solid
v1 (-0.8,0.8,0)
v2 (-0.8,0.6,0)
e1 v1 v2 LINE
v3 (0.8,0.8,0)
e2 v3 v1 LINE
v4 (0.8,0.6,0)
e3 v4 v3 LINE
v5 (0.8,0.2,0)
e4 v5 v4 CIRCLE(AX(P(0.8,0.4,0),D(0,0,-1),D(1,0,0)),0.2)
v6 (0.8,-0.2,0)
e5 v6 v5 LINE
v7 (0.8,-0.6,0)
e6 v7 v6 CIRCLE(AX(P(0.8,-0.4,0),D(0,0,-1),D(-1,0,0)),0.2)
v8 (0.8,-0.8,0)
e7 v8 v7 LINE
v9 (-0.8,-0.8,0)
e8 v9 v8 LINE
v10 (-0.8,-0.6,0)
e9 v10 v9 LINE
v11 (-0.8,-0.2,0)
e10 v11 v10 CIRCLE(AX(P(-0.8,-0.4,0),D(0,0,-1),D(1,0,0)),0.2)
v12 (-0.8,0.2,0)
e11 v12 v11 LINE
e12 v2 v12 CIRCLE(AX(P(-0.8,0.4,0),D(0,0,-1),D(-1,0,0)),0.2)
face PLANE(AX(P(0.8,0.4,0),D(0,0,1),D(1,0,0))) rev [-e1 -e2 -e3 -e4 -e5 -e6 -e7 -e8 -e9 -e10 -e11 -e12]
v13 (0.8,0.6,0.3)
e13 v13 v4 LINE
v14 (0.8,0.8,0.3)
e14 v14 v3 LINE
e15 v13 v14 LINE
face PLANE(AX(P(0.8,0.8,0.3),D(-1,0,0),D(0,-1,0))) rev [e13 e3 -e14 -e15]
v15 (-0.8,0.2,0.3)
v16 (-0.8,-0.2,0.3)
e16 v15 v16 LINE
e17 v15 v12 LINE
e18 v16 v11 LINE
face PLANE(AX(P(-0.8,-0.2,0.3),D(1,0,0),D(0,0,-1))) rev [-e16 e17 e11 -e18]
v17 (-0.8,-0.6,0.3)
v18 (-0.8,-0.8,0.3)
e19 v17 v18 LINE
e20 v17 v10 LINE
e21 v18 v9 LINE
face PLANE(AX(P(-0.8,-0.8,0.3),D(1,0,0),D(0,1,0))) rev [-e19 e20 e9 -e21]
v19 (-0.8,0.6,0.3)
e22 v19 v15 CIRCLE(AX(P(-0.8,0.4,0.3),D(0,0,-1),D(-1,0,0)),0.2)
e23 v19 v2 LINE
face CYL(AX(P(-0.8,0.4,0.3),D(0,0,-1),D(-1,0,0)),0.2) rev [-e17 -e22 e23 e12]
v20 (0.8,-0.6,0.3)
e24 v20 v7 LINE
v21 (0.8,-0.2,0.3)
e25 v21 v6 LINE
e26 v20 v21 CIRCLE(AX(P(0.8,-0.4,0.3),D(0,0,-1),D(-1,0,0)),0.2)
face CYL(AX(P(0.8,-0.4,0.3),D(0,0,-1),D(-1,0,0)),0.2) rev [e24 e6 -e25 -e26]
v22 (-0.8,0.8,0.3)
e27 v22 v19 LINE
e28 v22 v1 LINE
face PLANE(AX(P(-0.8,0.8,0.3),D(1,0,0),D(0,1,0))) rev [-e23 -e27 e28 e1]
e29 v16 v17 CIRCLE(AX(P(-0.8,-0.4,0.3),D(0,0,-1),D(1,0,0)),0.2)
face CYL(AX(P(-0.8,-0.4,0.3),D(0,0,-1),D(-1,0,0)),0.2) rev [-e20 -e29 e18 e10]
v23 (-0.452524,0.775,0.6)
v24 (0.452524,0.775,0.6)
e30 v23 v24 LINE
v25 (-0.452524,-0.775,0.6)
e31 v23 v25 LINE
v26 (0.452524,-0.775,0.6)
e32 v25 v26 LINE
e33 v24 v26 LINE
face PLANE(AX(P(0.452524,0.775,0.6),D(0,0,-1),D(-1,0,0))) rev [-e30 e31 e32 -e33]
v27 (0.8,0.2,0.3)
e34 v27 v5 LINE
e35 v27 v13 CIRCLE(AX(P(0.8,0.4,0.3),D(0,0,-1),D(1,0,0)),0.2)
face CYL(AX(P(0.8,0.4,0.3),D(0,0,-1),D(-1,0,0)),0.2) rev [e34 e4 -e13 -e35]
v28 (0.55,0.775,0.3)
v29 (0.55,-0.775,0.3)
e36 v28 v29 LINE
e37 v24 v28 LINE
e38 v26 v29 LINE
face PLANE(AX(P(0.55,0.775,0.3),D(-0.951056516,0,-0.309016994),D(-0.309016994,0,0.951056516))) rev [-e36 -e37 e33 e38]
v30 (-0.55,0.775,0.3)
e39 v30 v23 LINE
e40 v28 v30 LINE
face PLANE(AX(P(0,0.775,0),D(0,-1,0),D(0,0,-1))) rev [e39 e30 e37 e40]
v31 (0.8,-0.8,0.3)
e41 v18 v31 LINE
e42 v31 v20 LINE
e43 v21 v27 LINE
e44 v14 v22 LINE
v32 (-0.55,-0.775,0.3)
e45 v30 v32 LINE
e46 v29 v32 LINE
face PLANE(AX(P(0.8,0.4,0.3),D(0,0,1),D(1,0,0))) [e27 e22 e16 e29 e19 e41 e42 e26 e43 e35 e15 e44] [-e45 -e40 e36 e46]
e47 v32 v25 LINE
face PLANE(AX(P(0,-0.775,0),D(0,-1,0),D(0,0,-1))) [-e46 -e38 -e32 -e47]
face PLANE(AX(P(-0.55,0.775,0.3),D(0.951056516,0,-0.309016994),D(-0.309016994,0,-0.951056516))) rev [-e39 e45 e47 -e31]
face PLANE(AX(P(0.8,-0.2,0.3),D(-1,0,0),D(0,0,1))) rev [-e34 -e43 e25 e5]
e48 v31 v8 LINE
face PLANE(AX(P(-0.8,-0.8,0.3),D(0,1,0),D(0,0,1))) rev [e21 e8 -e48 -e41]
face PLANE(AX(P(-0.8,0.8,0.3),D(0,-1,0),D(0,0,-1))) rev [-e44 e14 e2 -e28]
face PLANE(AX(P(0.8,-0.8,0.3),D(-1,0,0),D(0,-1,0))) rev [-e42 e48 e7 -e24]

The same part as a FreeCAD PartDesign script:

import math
import FreeCAD as App
import Part
import Sketcher
from FreeCAD import Vector
Q = App.Units.Quantity


def add_polygon(sketch, points):
    """Adds a closed chain of lines whose ends are joined by coincident constraints."""
    first, n = sketch.GeometryCount, len(points)
    for a, b in zip(points, points[1:] + points[:1]):
        sketch.addGeometry(Part.LineSegment(App.Vector(*a, 0), App.Vector(*b, 0)), False)
    for i in range(n):
        sketch.addConstraint(Sketcher.Constraint("Coincident", first + i, 2, first + (i + 1) % n, 1))

doc = App.newDocument("Part")
params = doc.addObject("Spreadsheet::Sheet", "Params")
for row, (alias, value) in enumerate([
    ("sketch1_radius", "0.2 mm"),
    ("sketch1_width", "1.6 mm"),
    ("sketch1_height", "0.2 mm"),
    ("sketch1_height2", "0.4 mm"),
    ("pad1_length", "0.3 mm"),
    ("sketch2_width", "1.1 mm"),
    ("pad2_length", "1.55 mm"),
], start=1):
    params.set(f"A{row}", alias)
    params.set(f"B{row}", "=" + value)
    params.setAlias(f"B{row}", alias)

body = doc.addObject("PartDesign::Body", "Body")

# Sketch on XY plane
sketch1 = body.newObject("Sketcher::SketchObject", "Sketch")
sketch1.AttachmentSupport = (doc.getObject("XY_Plane"), [""])
sketch1.MapMode = "FlatFace"
sketch1.addGeometry([
    Part.LineSegment(Vector(0.8, 0.8, 0), Vector(-0.8, 0.8, 0)),  # 0
    Part.LineSegment(Vector(-0.8, 0.8, 0), Vector(-0.8, 0.6, 0)),  # 1
    Part.ArcOfCircle(Part.Circle(Vector(-0.8, 0.4, 0), Vector(0, 0, 1), 0.2), math.radians(-90), math.radians(90)),  # 2
    Part.LineSegment(Vector(-0.8, 0.2, 0), Vector(-0.8, -0.2, 0)),  # 3
    Part.ArcOfCircle(Part.Circle(Vector(-0.8, -0.4, 0), Vector(0, 0, 1), 0.2), math.radians(-90), math.radians(90)),  # 4
    Part.LineSegment(Vector(-0.8, -0.6, 0), Vector(-0.8, -0.8, 0)),  # 5
    Part.LineSegment(Vector(-0.8, -0.8, 0), Vector(0.8, -0.8, 0)),  # 6
    Part.LineSegment(Vector(0.8, -0.8, 0), Vector(0.8, -0.6, 0)),  # 7
    Part.ArcOfCircle(Part.Circle(Vector(0.8, -0.4, 0), Vector(0, 0, 1), 0.2), math.radians(90), math.radians(270)),  # 8
    Part.LineSegment(Vector(0.8, -0.2, 0), Vector(0.8, 0.2, 0)),  # 9
    Part.ArcOfCircle(Part.Circle(Vector(0.8, 0.4, 0), Vector(0, 0, 1), 0.2), math.radians(90), math.radians(270)),  # 10
    Part.LineSegment(Vector(0.8, 0.6, 0), Vector(0.8, 0.8, 0)),  # 11
], False)
sketch1.addConstraint([
    Sketcher.Constraint("Coincident", 0, 2, 1, 1),
    Sketcher.Constraint("Coincident", 1, 2, 2, 2),
    Sketcher.Constraint("Coincident", 2, 1, 3, 1),
    Sketcher.Constraint("Coincident", 3, 2, 4, 2),
    Sketcher.Constraint("Coincident", 4, 1, 5, 1),
    Sketcher.Constraint("Coincident", 5, 2, 6, 1),
    Sketcher.Constraint("Coincident", 6, 2, 7, 1),
    Sketcher.Constraint("Coincident", 7, 2, 8, 2),
    Sketcher.Constraint("Coincident", 8, 1, 9, 1),
    Sketcher.Constraint("Coincident", 9, 2, 10, 2),
    Sketcher.Constraint("Coincident", 10, 1, 11, 1),
    Sketcher.Constraint("Coincident", 11, 2, 0, 1),
    Sketcher.Constraint("Horizontal", 0),
    Sketcher.Constraint("Vertical", 1),
    Sketcher.Constraint("Vertical", 3),
    Sketcher.Constraint("Vertical", 5),
    Sketcher.Constraint("Horizontal", 6),
    Sketcher.Constraint("Vertical", 7),
    Sketcher.Constraint("Vertical", 9),
    Sketcher.Constraint("Vertical", 11),
    Sketcher.Constraint("Equal", 2, 4),
    Sketcher.Constraint("Equal", 4, 8),
    Sketcher.Constraint("Equal", 8, 10),
    Sketcher.Constraint("Symmetric", 2, 3, 8, 3, -1, 1),
    Sketcher.Constraint("Symmetric", 4, 3, 10, 3, -1, 1),
    Sketcher.Constraint("Symmetric", 0, 2, 6, 2, -1, 1),
    Sketcher.Constraint("Symmetric", 4, 3, 8, 3, -2),
    Sketcher.Constraint("Vertical", 4, 3, 0, 2),
    Sketcher.Constraint("Vertical", 1, 2, 2, 1),
    Sketcher.Constraint("Vertical", 3, 2, 4, 1),
    Sketcher.Constraint("Vertical", 7, 2, 8, 1),
    Sketcher.Constraint("Vertical", 9, 2, 10, 1),
    Sketcher.Constraint("Radius", 2, Q("0.2 mm")),
    Sketcher.Constraint("DistanceX", 0, 2, 0, 1, Q("1.6 mm")),
    Sketcher.Constraint("DistanceY", 1, 2, 1, 1, Q("0.2 mm")),
    Sketcher.Constraint("DistanceY", 3, 2, 3, 1, Q("0.4 mm")),
])
sketch1.setExpression("Constraints[32]", "Params.sketch1_radius")
sketch1.setExpression("Constraints[33]", "Params.sketch1_width")
sketch1.setExpression("Constraints[34]", "Params.sketch1_height")
sketch1.setExpression("Constraints[35]", "Params.sketch1_height2")
pad1 = body.newObject("PartDesign::Pad", "Pad")
pad1.Profile = sketch1
pad1.setExpression("Length", "Params.pad1_length")

# Sketch on XZ plane
sketch2 = body.newObject("Sketcher::SketchObject", "Sketch001")
sketch2.AttachmentSupport = (doc.getObject("XZ_Plane"), [""])
sketch2.MapMode = "FlatFace"
add_polygon(sketch2, [(0.45, 0.6), (0.55, 0.3), (-0.55, 0.3), (-0.45, 0.6)])  # lines 0-3
sketch2.addConstraint([
    Sketcher.Constraint("Horizontal", 1),
    Sketcher.Constraint("Horizontal", 3),
    Sketcher.Constraint("Equal", 0, 2),
    Sketcher.Constraint("Angle", 0, Q("-72 deg")),
    Sketcher.Constraint("DistanceX", 1, 2, 1, 1, Q("1.1 mm")),
    Sketcher.Constraint("DistanceY", -1, 1, 0, 2, Q("0.3 mm")),
    Sketcher.Constraint("DistanceY", -1, 1, 2, 2, Q("0.6 mm")),
    Sketcher.Constraint("DistanceX", -1, 1, 0, 2, Q("0.55 mm")),
])
sketch2.setExpression("Constraints[8]", "Params.sketch2_width")
pad2 = body.newObject("PartDesign::Pad", "Pad001")
pad2.Profile = sketch2
pad2.setExpression("Length", "Params.pad2_length")
pad2.Midplane = True

doc.recompute()
